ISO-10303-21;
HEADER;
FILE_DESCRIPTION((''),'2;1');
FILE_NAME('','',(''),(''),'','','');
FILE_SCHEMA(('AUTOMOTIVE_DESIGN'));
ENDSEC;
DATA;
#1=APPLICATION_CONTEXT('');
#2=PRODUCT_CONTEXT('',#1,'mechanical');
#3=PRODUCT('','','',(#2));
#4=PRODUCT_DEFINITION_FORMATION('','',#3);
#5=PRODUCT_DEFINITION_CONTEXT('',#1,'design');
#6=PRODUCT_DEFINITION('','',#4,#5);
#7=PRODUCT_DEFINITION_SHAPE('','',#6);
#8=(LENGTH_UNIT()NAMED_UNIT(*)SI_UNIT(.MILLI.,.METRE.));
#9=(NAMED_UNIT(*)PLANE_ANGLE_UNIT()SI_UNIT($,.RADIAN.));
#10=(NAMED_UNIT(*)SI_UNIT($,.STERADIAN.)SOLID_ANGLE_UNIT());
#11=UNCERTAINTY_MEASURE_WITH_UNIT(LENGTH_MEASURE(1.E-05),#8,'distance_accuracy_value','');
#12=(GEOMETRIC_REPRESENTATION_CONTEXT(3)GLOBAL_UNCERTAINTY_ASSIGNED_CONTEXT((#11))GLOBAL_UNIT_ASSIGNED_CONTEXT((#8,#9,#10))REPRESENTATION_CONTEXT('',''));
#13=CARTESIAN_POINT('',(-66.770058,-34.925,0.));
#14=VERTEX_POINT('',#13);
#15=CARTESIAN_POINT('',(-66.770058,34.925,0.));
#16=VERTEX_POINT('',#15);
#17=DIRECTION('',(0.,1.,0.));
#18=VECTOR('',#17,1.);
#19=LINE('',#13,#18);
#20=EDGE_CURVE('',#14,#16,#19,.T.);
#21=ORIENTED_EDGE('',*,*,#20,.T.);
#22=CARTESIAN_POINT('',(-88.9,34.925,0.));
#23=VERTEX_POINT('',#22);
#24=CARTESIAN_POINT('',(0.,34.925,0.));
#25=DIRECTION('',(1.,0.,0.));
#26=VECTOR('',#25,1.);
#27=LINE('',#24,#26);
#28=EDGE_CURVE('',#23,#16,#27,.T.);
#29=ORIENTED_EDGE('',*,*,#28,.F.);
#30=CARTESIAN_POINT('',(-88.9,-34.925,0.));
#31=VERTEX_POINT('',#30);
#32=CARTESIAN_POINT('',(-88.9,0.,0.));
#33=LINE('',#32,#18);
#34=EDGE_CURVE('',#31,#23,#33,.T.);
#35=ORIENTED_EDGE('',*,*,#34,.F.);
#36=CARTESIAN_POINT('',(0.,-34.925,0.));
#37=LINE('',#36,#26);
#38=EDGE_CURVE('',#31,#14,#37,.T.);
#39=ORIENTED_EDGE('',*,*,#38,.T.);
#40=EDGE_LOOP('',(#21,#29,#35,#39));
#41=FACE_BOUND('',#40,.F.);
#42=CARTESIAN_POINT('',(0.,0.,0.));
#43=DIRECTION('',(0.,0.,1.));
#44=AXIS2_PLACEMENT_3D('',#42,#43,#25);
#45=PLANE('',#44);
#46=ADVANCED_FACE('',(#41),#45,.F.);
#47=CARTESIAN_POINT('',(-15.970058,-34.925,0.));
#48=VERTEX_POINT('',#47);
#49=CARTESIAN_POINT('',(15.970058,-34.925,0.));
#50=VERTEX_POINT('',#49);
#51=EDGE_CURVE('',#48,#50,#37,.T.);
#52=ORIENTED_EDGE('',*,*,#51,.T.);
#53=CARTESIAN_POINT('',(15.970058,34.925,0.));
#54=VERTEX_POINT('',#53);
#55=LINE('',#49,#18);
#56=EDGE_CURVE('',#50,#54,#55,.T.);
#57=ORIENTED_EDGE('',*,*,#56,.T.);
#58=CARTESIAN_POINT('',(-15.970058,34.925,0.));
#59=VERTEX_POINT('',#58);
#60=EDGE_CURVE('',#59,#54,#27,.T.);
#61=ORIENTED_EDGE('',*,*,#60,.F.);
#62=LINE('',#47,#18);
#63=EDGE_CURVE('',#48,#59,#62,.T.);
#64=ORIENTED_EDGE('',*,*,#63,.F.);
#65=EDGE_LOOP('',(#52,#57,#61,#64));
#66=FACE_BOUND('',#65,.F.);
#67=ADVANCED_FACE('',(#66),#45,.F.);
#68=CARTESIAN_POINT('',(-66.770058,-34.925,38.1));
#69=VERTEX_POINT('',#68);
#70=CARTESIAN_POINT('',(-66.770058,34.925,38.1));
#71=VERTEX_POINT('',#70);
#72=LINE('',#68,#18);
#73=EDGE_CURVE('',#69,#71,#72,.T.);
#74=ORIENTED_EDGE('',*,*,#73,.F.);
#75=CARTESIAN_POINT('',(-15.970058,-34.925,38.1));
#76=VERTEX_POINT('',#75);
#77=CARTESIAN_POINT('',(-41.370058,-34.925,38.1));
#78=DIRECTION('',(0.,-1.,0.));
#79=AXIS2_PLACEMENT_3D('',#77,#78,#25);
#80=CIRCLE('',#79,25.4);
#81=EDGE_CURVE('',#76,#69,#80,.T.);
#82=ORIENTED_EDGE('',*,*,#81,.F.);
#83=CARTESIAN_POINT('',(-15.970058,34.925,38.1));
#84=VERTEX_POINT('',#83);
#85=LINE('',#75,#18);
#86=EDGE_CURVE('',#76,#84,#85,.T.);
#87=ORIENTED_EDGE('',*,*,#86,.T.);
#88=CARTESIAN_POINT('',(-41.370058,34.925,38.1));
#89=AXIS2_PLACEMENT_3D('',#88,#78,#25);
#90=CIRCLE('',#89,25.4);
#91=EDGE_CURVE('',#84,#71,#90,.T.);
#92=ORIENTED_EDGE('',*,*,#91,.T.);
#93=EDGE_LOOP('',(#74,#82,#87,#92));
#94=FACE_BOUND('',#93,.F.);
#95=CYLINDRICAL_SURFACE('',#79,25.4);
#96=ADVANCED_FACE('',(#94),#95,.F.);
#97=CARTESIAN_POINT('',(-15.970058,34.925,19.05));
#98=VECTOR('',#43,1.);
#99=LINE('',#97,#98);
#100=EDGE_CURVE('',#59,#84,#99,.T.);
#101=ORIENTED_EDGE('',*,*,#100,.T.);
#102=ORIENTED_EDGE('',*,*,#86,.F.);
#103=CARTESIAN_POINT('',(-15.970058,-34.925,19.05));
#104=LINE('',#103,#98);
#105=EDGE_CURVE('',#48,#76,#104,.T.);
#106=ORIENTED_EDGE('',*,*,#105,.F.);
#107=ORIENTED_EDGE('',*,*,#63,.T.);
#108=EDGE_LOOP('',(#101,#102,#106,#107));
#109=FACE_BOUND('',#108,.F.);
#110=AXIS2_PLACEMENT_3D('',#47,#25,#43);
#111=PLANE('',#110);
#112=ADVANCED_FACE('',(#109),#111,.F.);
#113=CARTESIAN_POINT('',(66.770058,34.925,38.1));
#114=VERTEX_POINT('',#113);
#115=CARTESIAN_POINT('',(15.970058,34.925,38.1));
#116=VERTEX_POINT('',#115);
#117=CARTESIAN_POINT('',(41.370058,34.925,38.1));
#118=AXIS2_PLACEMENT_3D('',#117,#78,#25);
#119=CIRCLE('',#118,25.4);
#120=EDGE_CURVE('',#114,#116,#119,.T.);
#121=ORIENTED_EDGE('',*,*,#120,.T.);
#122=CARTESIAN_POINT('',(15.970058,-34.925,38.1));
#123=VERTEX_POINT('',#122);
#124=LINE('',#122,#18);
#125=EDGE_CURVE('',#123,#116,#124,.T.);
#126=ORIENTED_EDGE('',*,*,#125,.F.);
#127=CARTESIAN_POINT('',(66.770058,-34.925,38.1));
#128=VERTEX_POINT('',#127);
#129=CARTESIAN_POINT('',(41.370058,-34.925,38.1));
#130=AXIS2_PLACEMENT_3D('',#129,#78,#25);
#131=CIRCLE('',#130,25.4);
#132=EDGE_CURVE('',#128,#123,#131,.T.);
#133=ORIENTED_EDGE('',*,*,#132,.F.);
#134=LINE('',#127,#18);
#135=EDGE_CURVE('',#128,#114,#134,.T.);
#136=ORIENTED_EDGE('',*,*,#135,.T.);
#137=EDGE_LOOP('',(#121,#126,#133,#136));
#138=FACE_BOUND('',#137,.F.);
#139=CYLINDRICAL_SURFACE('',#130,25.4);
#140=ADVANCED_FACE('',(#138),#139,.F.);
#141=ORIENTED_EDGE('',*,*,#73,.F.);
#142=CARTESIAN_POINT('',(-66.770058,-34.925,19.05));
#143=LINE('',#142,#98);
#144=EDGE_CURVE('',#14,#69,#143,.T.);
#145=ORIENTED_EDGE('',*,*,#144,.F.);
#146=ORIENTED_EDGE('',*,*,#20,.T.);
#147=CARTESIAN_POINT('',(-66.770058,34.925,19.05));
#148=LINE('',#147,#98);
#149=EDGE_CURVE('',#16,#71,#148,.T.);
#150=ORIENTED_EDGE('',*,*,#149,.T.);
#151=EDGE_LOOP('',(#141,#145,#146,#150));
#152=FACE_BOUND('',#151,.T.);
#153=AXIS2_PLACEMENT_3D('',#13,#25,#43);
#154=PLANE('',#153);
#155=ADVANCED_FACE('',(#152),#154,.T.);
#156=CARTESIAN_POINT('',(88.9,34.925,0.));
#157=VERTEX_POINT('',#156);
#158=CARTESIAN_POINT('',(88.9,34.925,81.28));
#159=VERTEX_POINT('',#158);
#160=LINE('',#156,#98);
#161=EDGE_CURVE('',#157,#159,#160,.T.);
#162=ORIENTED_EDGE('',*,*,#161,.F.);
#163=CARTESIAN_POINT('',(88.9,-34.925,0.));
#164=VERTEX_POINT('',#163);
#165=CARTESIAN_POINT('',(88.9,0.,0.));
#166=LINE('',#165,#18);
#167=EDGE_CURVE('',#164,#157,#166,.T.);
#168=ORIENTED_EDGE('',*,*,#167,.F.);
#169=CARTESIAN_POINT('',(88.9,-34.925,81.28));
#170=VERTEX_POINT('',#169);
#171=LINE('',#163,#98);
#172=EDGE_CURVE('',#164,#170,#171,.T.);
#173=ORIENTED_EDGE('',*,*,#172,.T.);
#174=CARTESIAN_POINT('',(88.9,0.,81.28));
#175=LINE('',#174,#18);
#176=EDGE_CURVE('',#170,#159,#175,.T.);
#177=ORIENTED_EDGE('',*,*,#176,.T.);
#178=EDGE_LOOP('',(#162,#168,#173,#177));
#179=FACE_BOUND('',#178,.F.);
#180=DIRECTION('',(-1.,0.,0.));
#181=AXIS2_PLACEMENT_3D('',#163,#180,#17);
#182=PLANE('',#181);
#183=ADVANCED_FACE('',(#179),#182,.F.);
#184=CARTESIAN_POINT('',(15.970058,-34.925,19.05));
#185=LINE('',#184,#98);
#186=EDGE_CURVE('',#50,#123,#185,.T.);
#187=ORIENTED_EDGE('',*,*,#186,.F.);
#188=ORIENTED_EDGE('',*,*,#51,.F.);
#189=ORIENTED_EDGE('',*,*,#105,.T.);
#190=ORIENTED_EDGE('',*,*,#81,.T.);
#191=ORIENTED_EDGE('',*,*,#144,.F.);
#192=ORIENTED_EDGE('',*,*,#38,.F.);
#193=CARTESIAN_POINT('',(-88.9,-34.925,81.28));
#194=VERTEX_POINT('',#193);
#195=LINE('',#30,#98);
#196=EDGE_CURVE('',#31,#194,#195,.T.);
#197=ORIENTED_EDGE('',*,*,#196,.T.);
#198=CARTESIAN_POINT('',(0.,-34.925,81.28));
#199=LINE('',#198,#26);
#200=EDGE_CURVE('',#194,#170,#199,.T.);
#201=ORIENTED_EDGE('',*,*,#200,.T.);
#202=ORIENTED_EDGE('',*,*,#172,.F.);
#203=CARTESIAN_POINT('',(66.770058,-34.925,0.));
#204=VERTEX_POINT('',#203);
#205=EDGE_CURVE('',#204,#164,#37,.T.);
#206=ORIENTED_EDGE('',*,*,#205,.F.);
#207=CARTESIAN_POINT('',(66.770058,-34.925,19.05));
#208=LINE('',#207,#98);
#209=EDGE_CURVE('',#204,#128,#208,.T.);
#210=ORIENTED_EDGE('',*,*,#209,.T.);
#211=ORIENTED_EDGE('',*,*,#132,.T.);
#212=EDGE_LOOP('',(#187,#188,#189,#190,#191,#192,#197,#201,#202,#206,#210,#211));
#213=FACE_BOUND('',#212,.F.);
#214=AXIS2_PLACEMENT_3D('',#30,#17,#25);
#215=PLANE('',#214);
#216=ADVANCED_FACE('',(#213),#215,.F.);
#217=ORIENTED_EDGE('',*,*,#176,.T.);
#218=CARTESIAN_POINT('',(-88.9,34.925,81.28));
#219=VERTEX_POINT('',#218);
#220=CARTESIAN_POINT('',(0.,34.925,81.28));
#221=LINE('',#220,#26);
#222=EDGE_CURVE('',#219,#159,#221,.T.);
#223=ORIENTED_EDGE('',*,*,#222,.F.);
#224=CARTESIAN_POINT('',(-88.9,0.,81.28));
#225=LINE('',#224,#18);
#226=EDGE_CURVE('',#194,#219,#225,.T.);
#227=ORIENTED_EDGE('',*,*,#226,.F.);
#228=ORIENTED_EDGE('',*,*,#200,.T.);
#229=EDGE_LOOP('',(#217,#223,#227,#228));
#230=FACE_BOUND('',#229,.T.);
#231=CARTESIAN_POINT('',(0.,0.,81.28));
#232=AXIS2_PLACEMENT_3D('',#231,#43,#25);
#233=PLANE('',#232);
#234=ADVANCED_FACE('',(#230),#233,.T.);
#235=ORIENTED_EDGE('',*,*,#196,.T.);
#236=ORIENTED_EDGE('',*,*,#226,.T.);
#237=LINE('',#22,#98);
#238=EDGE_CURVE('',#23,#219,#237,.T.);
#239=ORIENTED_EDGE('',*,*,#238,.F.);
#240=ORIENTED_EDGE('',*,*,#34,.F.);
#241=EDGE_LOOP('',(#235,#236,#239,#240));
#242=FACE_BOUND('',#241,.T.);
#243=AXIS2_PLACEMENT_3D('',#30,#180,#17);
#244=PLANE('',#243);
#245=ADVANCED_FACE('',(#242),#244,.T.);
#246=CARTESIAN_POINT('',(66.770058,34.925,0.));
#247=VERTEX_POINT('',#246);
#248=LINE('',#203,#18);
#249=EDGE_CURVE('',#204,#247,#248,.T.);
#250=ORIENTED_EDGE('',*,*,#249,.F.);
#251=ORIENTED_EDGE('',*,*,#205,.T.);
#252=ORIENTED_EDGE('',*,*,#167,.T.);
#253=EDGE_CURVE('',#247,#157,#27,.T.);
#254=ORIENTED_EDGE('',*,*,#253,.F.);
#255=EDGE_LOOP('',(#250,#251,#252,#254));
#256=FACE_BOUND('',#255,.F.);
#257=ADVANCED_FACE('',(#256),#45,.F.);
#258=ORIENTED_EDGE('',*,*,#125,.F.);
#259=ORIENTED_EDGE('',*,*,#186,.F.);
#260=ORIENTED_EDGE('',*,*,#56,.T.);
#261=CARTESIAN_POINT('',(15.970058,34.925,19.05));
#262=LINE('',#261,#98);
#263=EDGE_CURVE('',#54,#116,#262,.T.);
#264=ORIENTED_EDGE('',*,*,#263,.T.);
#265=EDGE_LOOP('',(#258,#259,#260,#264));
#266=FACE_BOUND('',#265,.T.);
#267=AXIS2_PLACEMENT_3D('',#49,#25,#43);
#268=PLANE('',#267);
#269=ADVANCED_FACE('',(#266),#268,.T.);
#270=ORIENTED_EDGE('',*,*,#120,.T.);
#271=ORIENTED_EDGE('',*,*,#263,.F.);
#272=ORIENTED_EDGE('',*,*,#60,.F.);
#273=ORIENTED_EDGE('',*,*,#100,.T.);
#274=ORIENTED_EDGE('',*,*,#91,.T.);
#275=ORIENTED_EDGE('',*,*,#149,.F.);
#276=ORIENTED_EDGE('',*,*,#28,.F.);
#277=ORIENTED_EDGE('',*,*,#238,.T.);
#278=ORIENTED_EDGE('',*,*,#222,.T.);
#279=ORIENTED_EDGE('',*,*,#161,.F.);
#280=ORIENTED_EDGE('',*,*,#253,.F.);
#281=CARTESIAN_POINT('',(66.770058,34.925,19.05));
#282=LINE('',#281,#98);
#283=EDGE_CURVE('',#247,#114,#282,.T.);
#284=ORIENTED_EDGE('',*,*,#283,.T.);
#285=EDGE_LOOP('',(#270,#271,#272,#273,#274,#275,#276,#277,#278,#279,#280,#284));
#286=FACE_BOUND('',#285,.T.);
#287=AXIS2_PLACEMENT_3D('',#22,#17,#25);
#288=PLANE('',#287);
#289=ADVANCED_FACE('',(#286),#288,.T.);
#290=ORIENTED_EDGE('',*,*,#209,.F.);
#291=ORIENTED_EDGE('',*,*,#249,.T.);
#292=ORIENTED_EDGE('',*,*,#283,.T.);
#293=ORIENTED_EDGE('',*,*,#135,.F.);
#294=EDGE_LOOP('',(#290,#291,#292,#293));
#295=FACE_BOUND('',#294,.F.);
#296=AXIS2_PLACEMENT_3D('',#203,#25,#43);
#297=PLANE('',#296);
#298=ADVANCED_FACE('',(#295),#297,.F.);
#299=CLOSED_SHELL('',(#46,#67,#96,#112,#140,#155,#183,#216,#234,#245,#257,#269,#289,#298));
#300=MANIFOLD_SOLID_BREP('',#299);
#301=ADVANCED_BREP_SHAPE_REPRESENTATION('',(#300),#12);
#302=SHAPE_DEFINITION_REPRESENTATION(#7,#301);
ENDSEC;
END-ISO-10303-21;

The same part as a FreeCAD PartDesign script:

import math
import FreeCAD as App
import Part
import Sketcher

V = App.Vector
Q = App.Units.Quantity

doc = App.newDocument("Part")
body = doc.addObject("PartDesign::Body", "Body")

sketch1 = body.newObject("Sketcher::SketchObject", "Sketch")
sketch1.AttachmentSupport = (doc.getObject("XY_Plane"), [""])
sketch1.MapMode = "FlatFace"
sketch1.addGeometry([
    Part.LineSegment(V(-89, 35, 0), V(-89, -35, 0)),
    Part.LineSegment(V(-89, -35, 0), V(89, -35, 0)),
    Part.LineSegment(V(89, -35, 0), V(89, 35, 0)),
    Part.LineSegment(V(89, 35, 0), V(-89, 35, 0)),
], False)
sketch1.addConstraint([
    Sketcher.Constraint("Coincident", 0, 2, 1, 1),
    Sketcher.Constraint("Coincident", 1, 2, 2, 1),
    Sketcher.Constraint("Coincident", 2, 2, 3, 1),
    Sketcher.Constraint("Coincident", 3, 2, 0, 1),
    Sketcher.Constraint("Vertical", 0),
    Sketcher.Constraint("Horizontal", 1),
    Sketcher.Constraint("Vertical", 2),
    Sketcher.Constraint("Horizontal", 3),
    Sketcher.Constraint("Symmetric", 0, 2, 2, 2, -1, 1),
    Sketcher.Constraint("DistanceX", 1, 1, 1, 2, Q("7 in")),
    Sketcher.Constraint("DistanceY", 0, 2, 0, 1, Q("2.75 in")),
])
pad1 = body.newObject("PartDesign::Pad", "Pad")
pad1.Profile = sketch1
pad1.Length = Q("3.2 in")

sketch2 = body.newObject("Sketcher::SketchObject", "Sketch001")
sketch2.AttachmentSupport = (doc.getObject("XZ_Plane"), [""])
sketch2.MapMode = "FlatFace"
sketch2.AttachmentOffset = App.Placement(V(0, 0, 1.375 * 25.4), App.Rotation())
sketch2.addGeometry([
    Part.ArcOfCircle(Part.Circle(V(-41, 38, 0), V(0, 0, 1), 25), math.radians(0), math.radians(180)),
    Part.LineSegment(V(-67, 38, 0), V(-67, 0, 0)),
    Part.LineSegment(V(-67, 0, 0), V(-16, 0, 0)),
    Part.LineSegment(V(-16, 0, 0), V(-16, 38, 0)),
], False)
sketch2.addConstraint([
    Sketcher.Constraint("Tangent", 0, 2, 1, 1),
    Sketcher.Constraint("Coincident", 1, 2, 2, 1),
    Sketcher.Constraint("Coincident", 2, 2, 3, 1),
    Sketcher.Constraint("Tangent", 3, 2, 0, 1),
    Sketcher.Constraint("Vertical", 1),
    Sketcher.Constraint("Horizontal", 2),
    Sketcher.Constraint("Vertical", 3),
    Sketcher.Constraint("PointOnObject", 1, 2, -1),
    Sketcher.Constraint("Radius", 0, Q("1 in")),
    Sketcher.Constraint("DistanceY", 1, 2, 1, 1, Q("1.5 in")),
    Sketcher.Constraint("DistanceX", 0, 2, -1, 1, Q("66.770058 mm")),
])
pocket1 = body.newObject("PartDesign::Pocket", "Pocket")
pocket1.Profile = sketch2
pocket1.Length = Q("2.75 in")

sketch3 = body.newObject("Sketcher::SketchObject", "Sketch002")
sketch3.AttachmentSupport = (doc.getObject("XZ_Plane"), [""])
sketch3.MapMode = "FlatFace"
sketch3.AttachmentOffset = App.Placement(V(0, 0, 1.375 * 25.4), App.Rotation())
sketch3.addGeometry([
    Part.LineSegment(V(16, 38, 0), V(16, 0, 0)),
    Part.LineSegment(V(16, 0, 0), V(67, 0, 0)),
    Part.LineSegment(V(67, 0, 0), V(67, 38, 0)),
    Part.ArcOfCircle(Part.Circle(V(41, 38, 0), V(0, 0, 1), 25), math.radians(0), math.radians(180)),
], False)
sketch3.addConstraint([
    Sketcher.Constraint("Coincident", 0, 2, 1, 1),
    Sketcher.Constraint("Coincident", 1, 2, 2, 1),
    Sketcher.Constraint("Tangent", 2, 2, 3, 1),
    Sketcher.Constraint("Tangent", 3, 2, 0, 1),
    Sketcher.Constraint("Vertical", 0),
    Sketcher.Constraint("Horizontal", 1),
    Sketcher.Constraint("Vertical", 2),
    Sketcher.Constraint("PointOnObject", 0, 2, -1),
    Sketcher.Constraint("Radius", 3, Q("1 in")),
    Sketcher.Constraint("DistanceY", 0, 2, 0, 1, Q("1.5 in")),
    Sketcher.Constraint("DistanceX", -1, 1, 1, 2, Q("66.770058 mm")),
])
pocket2 = body.newObject("PartDesign::Pocket", "Pocket001")
pocket2.Profile = sketch3
pocket2.Length = Q("2.75 in")

doc.recompute()
